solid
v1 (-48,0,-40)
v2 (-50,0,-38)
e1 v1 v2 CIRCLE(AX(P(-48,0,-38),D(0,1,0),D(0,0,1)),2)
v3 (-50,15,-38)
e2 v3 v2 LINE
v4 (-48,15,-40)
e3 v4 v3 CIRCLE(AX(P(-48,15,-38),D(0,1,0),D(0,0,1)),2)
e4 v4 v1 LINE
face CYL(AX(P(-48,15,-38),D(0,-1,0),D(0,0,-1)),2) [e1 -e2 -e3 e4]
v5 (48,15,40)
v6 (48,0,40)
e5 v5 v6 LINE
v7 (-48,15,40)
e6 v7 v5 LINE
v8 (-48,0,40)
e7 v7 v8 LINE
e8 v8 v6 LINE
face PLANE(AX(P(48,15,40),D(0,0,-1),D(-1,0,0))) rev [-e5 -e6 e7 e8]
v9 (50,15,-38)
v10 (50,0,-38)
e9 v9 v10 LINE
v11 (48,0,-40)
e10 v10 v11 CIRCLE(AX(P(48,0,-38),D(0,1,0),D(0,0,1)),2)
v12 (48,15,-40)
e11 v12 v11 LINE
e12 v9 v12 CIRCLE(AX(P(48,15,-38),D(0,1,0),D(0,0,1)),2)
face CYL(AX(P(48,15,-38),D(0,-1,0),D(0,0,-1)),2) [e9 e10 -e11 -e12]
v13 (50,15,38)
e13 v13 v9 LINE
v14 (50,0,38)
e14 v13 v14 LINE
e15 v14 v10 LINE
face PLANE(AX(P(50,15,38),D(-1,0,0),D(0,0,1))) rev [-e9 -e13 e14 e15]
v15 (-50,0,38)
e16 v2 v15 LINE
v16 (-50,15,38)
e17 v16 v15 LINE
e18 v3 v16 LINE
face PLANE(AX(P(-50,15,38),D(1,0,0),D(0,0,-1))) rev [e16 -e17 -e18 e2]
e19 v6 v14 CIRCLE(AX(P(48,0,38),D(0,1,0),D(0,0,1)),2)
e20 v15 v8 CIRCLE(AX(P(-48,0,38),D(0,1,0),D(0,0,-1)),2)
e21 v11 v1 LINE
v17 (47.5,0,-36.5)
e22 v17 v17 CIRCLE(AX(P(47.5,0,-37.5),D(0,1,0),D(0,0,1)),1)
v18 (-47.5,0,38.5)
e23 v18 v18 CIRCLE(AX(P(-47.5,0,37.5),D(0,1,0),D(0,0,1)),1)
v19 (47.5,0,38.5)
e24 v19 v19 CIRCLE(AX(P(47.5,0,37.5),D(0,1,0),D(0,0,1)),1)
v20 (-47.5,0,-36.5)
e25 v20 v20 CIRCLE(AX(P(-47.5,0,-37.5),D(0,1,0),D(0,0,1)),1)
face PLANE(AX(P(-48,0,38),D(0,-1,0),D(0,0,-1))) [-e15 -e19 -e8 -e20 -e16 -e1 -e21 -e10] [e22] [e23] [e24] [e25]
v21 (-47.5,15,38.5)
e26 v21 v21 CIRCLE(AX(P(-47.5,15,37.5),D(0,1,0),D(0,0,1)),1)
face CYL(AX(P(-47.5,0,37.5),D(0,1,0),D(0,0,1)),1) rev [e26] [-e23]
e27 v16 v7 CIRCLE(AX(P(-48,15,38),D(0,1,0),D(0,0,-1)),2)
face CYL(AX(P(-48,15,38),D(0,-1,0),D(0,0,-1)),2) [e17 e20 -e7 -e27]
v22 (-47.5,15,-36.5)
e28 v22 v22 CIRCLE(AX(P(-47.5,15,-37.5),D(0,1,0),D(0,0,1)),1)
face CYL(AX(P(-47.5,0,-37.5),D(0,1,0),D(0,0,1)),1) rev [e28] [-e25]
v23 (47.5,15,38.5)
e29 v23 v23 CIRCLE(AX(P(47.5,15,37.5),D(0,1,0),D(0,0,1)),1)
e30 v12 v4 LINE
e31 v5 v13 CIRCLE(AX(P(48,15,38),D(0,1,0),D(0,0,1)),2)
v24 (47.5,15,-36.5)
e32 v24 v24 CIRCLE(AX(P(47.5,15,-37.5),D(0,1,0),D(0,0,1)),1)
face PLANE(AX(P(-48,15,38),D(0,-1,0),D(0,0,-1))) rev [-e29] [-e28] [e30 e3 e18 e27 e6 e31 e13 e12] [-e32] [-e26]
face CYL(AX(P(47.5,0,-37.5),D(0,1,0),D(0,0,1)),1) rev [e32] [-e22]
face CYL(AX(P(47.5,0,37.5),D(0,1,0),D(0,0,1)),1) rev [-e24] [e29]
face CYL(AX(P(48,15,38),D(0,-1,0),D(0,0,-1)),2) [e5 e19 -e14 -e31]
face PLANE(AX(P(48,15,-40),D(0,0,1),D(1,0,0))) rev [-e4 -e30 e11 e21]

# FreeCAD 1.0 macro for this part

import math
import FreeCAD as App
import Part
import Sketcher

V = App.Vector
Q = App.Units.Quantity

doc = App.newDocument("Part")
body = doc.addObject("PartDesign::Body", "Body")

# Sketch on XZ plane
sketch1 = doc.addObject("Sketcher::SketchObject", "Sketch")
body.addObject(sketch1)
sketch1.AttachmentSupport = (doc.XZ_Plane, [""])
sketch1.MapMode = "FlatFace"
sketch1.addGeometry([
    Part.LineSegment(V(-48, 40, 0), V(48, 40, 0)),  # 0
    Part.ArcOfCircle(Part.Circle(V(48, 38, 0), V(0, 0, 1), 2), math.radians(0), math.radians(90)),  # 1
    Part.LineSegment(V(50, 38, 0), V(50, -38, 0)),  # 2
    Part.ArcOfCircle(Part.Circle(V(48, -38, 0), V(0, 0, 1), 2), math.radians(-90), math.radians(0)),  # 3
    Part.LineSegment(V(48, -40, 0), V(-48, -40, 0)),  # 4
    Part.ArcOfCircle(Part.Circle(V(-48, -38, 0), V(0, 0, 1), 2), math.radians(-180), math.radians(-90)),  # 5
    Part.LineSegment(V(-50, -38, 0), V(-50, 38, 0)),  # 6
    Part.ArcOfCircle(Part.Circle(V(-48, 38, 0), V(0, 0, 1), 2), math.radians(90), math.radians(180)),  # 7
], False)
sketch1.addConstraint([
    Sketcher.Constraint("Tangent", 0, 2, 1, 2),
    Sketcher.Constraint("Tangent", 1, 1, 2, 1),
    Sketcher.Constraint("Tangent", 2, 2, 3, 2),
    Sketcher.Constraint("Tangent", 3, 1, 4, 1),
    Sketcher.Constraint("Tangent", 4, 2, 5, 2),
    Sketcher.Constraint("Tangent", 5, 1, 6, 1),
    Sketcher.Constraint("Tangent", 6, 2, 7, 2),
    Sketcher.Constraint("Tangent", 7, 1, 0, 1),
    Sketcher.Constraint("Horizontal", 0),
    Sketcher.Constraint("Vertical", 2),
    Sketcher.Constraint("Horizontal", 4),
    Sketcher.Constraint("Vertical", 6),
    Sketcher.Constraint("Equal", 1, 3),
    Sketcher.Constraint("Equal", 3, 5),
    Sketcher.Constraint("Equal", 5, 7),
    Sketcher.Constraint("Symmetric", 1, 3, 5, 3, -1, 1),
    Sketcher.Constraint("Radius", 1, Q("2 mm")),
    Sketcher.Constraint("DistanceX", 0, 1, 0, 2, Q("96 mm")),
    Sketcher.Constraint("DistanceY", 2, 2, 2, 1, Q("76 mm")),
])
pad1 = doc.addObject("PartDesign::Pad", "Pad")
body.addObject(pad1)
pad1.Profile = sketch1
pad1.Length = 15
pad1.Reversed = True

# Sketch on XZ plane
sketch2 = doc.addObject("Sketcher::SketchObject", "Sketch001")
body.addObject(sketch2)
sketch2.AttachmentSupport = (doc.XZ_Plane, [""])
sketch2.MapMode = "FlatFace"
sketch2.AttachmentOffset = App.Placement(V(0, 0, -15), App.Rotation())
sketch2.addGeometry([
    Part.Circle(V(-47.5, -37.5, 0), V(0, 0, 1), 1),
    Part.Circle(V(47.5, -37.5, 0), V(0, 0, 1), 1),
    Part.Circle(V(47.5, 37.5, 0), V(0, 0, 1), 1),
    Part.Circle(V(-47.5, 37.5, 0), V(0, 0, 1), 1),
], False)
sketch2.addConstraint([
    Sketcher.Constraint("Equal", 0, 1),
    Sketcher.Constraint("Equal", 1, 2),
    Sketcher.Constraint("Equal", 2, 3),
    Sketcher.Constraint("Symmetric", 0, 3, 2, 3, -1, 1),
    Sketcher.Constraint("Symmetric", 1, 3, 3, 3, -1, 1),
    Sketcher.Constraint("Symmetric", 0, 3, 1, 3, -2),
    Sketcher.Constraint("Diameter", 0, Q("2 mm")),
    Sketcher.Constraint("DistanceX", 0, 3, 1, 3, Q("95 mm")),
    Sketcher.Constraint("DistanceY", 1, 3, 2, 3, Q("75 mm")),
])
pocket1 = doc.addObject("PartDesign::Pocket", "Pocket")
body.addObject(pocket1)
pocket1.Profile = sketch2
pocket1.Type = "ThroughAll"
pocket1.Reversed = True

doc.recompute()
